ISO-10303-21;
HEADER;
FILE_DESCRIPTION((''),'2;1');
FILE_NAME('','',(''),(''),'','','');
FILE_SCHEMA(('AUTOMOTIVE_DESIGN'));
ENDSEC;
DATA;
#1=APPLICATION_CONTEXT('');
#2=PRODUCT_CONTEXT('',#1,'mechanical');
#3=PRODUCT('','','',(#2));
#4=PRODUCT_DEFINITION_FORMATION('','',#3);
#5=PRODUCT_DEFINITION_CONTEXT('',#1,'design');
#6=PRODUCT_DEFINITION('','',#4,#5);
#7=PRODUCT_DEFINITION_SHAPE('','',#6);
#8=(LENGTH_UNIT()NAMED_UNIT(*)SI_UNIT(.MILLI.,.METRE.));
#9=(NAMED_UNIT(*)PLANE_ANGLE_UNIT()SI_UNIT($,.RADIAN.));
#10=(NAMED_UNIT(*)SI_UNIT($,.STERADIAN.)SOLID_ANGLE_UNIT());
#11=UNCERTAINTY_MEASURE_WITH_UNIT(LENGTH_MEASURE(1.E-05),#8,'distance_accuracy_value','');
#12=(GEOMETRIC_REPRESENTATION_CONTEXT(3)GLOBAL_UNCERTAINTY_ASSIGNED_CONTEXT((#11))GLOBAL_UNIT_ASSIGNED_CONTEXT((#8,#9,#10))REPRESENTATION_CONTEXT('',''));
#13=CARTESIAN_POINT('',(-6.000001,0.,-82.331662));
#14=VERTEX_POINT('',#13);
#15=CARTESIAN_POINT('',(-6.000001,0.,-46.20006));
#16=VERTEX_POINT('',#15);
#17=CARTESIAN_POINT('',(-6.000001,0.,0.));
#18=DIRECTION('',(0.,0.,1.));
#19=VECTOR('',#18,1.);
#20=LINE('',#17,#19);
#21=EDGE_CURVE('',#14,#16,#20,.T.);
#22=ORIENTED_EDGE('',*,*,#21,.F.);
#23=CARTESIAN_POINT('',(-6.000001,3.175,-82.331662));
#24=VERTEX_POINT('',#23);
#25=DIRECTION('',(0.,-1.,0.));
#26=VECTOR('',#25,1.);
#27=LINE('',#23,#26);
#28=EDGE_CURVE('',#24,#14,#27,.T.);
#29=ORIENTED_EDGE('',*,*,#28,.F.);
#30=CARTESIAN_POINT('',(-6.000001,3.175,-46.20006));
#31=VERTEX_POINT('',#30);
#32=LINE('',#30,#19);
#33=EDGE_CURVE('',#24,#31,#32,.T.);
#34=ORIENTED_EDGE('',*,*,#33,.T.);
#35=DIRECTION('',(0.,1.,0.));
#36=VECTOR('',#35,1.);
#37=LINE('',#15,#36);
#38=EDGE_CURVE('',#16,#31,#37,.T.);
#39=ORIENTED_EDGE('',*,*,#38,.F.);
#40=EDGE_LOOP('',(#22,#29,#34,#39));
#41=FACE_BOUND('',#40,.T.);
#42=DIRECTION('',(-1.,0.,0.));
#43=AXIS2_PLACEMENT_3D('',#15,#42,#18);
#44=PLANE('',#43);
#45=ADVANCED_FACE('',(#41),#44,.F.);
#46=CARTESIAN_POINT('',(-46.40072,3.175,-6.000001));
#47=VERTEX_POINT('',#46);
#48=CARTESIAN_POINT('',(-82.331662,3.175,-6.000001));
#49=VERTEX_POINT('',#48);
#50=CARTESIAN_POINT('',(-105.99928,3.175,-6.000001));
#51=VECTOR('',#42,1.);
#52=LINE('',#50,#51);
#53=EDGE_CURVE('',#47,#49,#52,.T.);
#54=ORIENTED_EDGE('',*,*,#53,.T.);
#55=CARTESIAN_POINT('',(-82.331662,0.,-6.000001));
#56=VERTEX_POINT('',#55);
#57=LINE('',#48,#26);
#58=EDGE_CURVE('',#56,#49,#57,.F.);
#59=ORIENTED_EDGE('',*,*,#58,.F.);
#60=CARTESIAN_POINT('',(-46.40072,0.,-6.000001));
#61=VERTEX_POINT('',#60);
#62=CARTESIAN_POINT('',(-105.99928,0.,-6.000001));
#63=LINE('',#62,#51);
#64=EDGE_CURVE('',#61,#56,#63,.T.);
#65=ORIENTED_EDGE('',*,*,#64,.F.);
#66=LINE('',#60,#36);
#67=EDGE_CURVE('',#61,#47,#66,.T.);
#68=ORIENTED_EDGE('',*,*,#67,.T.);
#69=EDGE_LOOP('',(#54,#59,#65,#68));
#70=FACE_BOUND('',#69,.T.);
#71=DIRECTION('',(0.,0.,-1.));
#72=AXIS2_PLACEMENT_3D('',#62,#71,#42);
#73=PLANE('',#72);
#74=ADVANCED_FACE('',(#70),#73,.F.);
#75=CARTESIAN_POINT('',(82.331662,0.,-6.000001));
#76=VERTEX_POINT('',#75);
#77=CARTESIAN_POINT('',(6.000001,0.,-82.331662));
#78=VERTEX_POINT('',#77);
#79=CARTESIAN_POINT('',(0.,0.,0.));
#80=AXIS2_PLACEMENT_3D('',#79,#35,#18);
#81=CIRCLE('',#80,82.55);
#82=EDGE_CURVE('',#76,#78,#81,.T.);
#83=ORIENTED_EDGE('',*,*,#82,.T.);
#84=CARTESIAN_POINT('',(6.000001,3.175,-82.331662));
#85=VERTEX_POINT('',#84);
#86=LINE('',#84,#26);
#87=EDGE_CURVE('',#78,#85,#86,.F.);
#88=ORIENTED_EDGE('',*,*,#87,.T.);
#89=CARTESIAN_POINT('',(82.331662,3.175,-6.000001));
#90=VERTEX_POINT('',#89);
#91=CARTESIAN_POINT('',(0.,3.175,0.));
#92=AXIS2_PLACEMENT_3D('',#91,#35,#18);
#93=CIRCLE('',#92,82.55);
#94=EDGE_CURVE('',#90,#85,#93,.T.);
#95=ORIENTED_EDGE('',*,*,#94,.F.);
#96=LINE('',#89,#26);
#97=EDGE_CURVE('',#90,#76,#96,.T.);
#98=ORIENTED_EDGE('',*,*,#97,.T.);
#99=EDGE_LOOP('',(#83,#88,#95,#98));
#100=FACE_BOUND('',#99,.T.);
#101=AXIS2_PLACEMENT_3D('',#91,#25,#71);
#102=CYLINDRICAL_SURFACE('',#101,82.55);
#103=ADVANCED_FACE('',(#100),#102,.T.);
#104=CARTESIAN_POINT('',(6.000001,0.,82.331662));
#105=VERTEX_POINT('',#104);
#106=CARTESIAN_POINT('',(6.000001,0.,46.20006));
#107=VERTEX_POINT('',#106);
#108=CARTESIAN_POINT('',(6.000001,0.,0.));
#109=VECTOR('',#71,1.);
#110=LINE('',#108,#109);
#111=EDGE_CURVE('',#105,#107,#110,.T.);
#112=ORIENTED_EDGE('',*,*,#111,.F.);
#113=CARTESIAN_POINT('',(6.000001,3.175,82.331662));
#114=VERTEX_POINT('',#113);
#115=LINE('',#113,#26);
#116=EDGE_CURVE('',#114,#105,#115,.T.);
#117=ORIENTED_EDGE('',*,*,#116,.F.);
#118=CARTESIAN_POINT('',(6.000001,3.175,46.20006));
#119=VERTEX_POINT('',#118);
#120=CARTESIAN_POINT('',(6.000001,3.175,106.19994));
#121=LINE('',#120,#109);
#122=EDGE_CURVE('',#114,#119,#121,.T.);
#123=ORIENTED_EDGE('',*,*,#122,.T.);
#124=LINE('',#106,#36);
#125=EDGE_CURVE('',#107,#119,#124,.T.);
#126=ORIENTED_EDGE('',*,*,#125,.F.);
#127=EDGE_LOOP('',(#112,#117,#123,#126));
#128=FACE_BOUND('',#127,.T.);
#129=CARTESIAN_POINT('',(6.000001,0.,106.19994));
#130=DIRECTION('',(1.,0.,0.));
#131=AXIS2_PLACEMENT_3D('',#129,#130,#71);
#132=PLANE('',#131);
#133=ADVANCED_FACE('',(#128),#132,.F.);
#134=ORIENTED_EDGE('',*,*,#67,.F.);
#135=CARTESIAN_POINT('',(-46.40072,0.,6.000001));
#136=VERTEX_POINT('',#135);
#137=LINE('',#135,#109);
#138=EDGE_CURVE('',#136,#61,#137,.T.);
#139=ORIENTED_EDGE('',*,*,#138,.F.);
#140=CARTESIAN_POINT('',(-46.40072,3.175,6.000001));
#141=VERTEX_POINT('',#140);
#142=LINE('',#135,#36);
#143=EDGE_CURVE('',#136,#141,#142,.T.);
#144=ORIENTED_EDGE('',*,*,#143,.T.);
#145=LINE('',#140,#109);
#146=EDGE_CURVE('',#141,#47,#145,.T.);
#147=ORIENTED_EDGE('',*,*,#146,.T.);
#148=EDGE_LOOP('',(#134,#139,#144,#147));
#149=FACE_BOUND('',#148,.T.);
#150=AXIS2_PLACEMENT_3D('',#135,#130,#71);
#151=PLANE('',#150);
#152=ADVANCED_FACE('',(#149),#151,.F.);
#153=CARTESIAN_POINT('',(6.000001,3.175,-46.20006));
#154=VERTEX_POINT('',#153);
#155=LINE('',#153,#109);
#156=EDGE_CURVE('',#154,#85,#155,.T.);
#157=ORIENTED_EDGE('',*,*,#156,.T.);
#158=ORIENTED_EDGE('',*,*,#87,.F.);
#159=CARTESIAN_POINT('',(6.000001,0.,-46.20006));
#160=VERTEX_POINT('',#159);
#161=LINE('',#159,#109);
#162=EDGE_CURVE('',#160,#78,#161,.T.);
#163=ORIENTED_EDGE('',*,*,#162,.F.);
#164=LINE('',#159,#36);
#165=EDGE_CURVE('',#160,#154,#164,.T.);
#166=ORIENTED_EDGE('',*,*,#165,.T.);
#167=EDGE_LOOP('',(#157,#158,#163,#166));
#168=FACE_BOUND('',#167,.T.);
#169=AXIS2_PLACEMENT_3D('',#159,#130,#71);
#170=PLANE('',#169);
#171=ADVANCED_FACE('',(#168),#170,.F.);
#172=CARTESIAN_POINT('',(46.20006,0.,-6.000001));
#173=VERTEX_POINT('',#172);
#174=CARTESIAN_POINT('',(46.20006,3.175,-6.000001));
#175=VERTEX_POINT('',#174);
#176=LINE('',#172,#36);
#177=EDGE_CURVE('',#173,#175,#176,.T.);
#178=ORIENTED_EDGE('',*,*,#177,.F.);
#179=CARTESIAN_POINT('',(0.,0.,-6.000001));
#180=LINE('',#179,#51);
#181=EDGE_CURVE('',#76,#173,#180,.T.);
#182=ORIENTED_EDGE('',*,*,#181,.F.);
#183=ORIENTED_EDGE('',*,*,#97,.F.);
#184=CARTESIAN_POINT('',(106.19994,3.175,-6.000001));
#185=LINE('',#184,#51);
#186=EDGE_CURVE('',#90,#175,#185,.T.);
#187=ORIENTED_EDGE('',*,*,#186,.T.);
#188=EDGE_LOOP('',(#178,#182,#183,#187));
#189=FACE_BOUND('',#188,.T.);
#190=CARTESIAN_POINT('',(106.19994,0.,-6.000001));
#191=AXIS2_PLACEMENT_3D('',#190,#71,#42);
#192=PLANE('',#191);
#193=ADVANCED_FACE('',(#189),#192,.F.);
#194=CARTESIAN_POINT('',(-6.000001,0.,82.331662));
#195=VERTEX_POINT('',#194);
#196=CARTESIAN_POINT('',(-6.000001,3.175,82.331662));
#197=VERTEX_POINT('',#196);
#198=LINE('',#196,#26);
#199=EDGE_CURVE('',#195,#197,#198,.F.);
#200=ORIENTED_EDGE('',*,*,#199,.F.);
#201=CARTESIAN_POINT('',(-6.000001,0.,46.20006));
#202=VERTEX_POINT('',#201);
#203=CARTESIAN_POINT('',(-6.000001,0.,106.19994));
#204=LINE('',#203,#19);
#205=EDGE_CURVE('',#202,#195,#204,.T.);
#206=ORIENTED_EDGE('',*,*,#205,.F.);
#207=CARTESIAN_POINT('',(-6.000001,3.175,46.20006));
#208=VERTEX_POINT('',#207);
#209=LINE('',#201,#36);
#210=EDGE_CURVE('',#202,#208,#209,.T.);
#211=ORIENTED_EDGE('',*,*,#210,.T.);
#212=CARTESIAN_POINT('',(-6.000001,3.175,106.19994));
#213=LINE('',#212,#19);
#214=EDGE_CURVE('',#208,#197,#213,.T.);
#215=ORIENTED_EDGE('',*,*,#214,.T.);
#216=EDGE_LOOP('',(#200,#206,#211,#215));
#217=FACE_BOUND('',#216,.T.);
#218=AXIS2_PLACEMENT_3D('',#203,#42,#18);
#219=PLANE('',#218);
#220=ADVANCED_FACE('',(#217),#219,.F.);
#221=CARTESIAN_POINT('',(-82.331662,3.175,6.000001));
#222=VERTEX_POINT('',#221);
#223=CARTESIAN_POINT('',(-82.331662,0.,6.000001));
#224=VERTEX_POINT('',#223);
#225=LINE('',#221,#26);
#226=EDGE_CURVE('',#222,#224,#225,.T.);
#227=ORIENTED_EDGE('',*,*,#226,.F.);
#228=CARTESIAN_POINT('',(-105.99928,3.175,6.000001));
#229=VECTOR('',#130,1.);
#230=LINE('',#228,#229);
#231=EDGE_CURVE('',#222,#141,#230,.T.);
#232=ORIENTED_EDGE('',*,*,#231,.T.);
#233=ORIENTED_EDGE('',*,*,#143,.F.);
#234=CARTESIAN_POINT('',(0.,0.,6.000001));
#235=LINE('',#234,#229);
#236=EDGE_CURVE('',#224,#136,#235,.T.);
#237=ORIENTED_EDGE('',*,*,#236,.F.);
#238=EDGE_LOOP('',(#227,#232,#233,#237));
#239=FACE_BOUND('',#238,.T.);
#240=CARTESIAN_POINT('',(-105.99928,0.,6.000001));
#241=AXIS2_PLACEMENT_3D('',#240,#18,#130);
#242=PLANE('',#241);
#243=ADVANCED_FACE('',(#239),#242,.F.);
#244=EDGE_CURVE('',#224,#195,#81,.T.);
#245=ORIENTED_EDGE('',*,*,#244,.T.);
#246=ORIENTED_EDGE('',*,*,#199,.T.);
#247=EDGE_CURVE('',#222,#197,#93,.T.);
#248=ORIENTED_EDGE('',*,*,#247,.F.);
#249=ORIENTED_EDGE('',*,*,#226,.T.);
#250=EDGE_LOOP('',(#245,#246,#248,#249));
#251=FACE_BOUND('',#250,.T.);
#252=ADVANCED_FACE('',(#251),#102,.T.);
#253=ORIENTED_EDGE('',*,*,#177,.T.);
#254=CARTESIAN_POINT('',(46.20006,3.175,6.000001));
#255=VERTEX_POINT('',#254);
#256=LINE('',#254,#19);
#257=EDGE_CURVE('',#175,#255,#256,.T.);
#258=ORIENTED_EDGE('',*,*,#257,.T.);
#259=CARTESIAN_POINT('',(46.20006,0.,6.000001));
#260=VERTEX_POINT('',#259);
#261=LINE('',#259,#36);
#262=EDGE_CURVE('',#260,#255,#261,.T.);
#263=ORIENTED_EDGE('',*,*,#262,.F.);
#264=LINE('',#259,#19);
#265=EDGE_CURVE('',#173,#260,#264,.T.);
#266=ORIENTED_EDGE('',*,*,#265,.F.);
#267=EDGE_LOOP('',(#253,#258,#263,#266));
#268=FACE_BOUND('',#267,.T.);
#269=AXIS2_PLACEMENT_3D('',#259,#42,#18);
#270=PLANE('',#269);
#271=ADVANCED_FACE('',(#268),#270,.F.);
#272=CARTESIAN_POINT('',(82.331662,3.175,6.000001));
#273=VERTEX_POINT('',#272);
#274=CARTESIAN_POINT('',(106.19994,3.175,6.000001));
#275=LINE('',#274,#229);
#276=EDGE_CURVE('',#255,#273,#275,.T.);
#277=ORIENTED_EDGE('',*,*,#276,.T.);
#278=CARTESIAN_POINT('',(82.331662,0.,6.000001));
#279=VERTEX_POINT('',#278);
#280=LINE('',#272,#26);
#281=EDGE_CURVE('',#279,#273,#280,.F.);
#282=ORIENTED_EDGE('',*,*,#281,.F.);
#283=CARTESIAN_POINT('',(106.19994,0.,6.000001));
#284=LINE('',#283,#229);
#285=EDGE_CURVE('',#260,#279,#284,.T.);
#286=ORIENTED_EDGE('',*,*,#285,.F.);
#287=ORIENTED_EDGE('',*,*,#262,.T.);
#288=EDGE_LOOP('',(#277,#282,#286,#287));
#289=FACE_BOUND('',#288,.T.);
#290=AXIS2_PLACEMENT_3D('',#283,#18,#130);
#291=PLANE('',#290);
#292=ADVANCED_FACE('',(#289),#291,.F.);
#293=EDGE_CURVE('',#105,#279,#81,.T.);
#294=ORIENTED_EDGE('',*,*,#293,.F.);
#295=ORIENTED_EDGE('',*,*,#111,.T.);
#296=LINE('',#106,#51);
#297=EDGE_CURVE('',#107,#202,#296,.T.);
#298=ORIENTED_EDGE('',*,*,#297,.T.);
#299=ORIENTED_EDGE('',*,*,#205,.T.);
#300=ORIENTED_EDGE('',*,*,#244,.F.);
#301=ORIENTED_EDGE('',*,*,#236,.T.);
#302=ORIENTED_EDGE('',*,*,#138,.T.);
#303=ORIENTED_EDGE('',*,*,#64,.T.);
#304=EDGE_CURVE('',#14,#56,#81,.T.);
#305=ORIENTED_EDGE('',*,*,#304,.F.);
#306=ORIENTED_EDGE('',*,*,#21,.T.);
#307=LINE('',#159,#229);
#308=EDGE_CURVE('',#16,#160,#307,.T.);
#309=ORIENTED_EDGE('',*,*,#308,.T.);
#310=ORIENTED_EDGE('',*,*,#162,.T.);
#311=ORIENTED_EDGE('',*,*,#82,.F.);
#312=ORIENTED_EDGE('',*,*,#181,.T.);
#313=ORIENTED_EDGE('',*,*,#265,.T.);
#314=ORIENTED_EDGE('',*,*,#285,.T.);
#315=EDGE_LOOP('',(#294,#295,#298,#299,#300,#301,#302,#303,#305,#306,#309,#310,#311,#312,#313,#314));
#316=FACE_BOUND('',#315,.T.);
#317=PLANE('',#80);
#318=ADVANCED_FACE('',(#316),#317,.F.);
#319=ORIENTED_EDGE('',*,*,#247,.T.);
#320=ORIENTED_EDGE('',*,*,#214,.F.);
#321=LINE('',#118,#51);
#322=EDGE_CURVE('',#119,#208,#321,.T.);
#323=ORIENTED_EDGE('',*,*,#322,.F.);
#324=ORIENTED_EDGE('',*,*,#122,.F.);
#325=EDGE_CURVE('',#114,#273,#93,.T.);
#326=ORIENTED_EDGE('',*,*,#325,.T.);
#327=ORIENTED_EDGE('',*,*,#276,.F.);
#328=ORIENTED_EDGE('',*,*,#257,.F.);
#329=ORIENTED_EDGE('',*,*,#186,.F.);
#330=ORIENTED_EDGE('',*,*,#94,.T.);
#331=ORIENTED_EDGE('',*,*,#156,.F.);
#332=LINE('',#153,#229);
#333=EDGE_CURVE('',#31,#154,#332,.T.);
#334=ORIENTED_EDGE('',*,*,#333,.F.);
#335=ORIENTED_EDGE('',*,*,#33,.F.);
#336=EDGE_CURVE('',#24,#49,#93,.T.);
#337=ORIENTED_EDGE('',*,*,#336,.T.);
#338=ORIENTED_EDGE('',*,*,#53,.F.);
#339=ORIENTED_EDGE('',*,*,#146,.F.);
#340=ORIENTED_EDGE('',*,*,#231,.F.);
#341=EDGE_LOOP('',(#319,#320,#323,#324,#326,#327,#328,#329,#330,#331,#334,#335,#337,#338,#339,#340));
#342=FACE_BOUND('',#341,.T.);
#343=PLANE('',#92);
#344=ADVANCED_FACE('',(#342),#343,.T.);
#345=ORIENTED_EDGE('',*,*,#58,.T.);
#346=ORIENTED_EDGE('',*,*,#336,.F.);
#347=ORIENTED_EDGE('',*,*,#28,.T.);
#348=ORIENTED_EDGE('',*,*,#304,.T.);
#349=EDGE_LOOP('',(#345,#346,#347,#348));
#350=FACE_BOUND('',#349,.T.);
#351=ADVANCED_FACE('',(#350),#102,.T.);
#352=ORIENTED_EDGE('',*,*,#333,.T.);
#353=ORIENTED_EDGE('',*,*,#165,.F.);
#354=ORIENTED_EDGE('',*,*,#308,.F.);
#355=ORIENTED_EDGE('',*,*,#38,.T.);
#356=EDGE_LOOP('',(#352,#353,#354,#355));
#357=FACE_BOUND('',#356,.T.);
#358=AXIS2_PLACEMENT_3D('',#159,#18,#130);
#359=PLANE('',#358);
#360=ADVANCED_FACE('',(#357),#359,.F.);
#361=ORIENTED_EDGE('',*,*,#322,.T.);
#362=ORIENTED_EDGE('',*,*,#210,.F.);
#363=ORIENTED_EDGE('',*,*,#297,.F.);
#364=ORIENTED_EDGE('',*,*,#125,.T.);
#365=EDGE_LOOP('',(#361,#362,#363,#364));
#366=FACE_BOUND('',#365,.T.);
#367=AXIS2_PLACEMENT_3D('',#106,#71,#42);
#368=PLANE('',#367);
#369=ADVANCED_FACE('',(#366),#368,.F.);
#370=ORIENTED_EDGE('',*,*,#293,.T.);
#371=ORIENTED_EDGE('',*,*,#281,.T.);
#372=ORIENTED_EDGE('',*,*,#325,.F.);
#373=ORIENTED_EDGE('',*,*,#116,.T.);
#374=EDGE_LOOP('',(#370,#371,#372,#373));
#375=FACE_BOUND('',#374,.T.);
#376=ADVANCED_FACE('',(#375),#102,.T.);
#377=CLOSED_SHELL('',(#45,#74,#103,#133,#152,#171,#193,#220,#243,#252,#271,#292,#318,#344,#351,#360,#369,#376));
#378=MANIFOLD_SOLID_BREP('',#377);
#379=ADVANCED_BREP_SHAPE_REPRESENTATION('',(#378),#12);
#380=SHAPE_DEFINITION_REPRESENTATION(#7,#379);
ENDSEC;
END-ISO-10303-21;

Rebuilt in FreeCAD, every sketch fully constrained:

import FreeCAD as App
import Part
import Sketcher
from FreeCAD import Vector
Q = App.Units.Quantity

doc = App.newDocument("Part")
body = doc.addObject("PartDesign::Body", "Body")

sketch1 = doc.addObject("Sketcher::SketchObject", "Sketch")
body.addObject(sketch1)
sketch1.AttachmentSupport = (doc.XZ_Plane, [""])
sketch1.MapMode = "FlatFace"
sketch1.addGeometry(Part.Circle(Vector(0, 0, 0), Vector(0, 0, 1), 83), False)
sketch1.addConstraint([
    Sketcher.Constraint("Coincident", 0, 3, -1, 1),
    Sketcher.Constraint("Diameter", 0, Q("6.5 in")),
])
pad1 = doc.addObject("PartDesign::Pad", "Pad")
body.addObject(pad1)
pad1.Profile = sketch1
pad1.Length = Q("0.125 in")
pad1.Reversed = True

sketch2 = doc.addObject("Sketcher::SketchObject", "Sketch001")
body.addObject(sketch2)
sketch2.AttachmentSupport = (doc.XZ_Plane, [""])
sketch2.MapMode = "FlatFace"
sketch2.AttachmentOffset = App.Placement(Vector(0, 0, -0.125 * 25.4), App.Rotation())
sketch2.addGeometry([
    Part.LineSegment(Vector(-106, -6, 0), Vector(-106, 6, 0)),
    Part.LineSegment(Vector(-106, 6, 0), Vector(-46, 6, 0)),
    Part.LineSegment(Vector(-46, 6, 0), Vector(-46, -6, 0)),
    Part.LineSegment(Vector(-46, -6, 0), Vector(-106, -6, 0)),
    Part.LineSegment(Vector(46, -6, 0), Vector(46, 6, 0)),
    Part.LineSegment(Vector(46, 6, 0), Vector(106, 6, 0)),
    Part.LineSegment(Vector(106, 6, 0), Vector(106, -6, 0)),
    Part.LineSegment(Vector(106, -6, 0), Vector(46, -6, 0)),
    Part.LineSegment(Vector(-6, -106, 0), Vector(-6, -46, 0)),
    Part.LineSegment(Vector(-6, -46, 0), Vector(6, -46, 0)),
    Part.LineSegment(Vector(6, -46, 0), Vector(6, -106, 0)),
    Part.LineSegment(Vector(6, -106, 0), Vector(-6, -106, 0)),
    Part.LineSegment(Vector(-6, 46, 0), Vector(-6, 106, 0)),
    Part.LineSegment(Vector(-6, 106, 0), Vector(6, 106, 0)),
    Part.LineSegment(Vector(6, 106, 0), Vector(6, 46, 0)),
    Part.LineSegment(Vector(6, 46, 0), Vector(-6, 46, 0)),
], False)
sketch2.addConstraint([
    Sketcher.Constraint("Coincident", 0, 2, 1, 1),
    Sketcher.Constraint("Coincident", 1, 2, 2, 1),
    Sketcher.Constraint("Coincident", 2, 2, 3, 1),
    Sketcher.Constraint("Coincident", 3, 2, 0, 1),
    Sketcher.Constraint("Coincident", 4, 2, 5, 1),
    Sketcher.Constraint("Coincident", 5, 2, 6, 1),
    Sketcher.Constraint("Coincident", 6, 2, 7, 1),
    Sketcher.Constraint("Coincident", 7, 2, 4, 1),
    Sketcher.Constraint("Coincident", 8, 2, 9, 1),
    Sketcher.Constraint("Coincident", 9, 2, 10, 1),
    Sketcher.Constraint("Coincident", 10, 2, 11, 1),
    Sketcher.Constraint("Coincident", 11, 2, 8, 1),
    Sketcher.Constraint("Coincident", 12, 2, 13, 1),
    Sketcher.Constraint("Coincident", 13, 2, 14, 1),
    Sketcher.Constraint("Coincident", 14, 2, 15, 1),
    Sketcher.Constraint("Coincident", 15, 2, 12, 1),
    Sketcher.Constraint("Vertical", 0),
    Sketcher.Constraint("Horizontal", 1),
    Sketcher.Constraint("Vertical", 2),
    Sketcher.Constraint("Horizontal", 3),
    Sketcher.Constraint("Vertical", 4),
    Sketcher.Constraint("Horizontal", 5),
    Sketcher.Constraint("Vertical", 6),
    Sketcher.Constraint("Horizontal", 7),
    Sketcher.Constraint("Vertical", 8),
    Sketcher.Constraint("Horizontal", 9),
    Sketcher.Constraint("Vertical", 10),
    Sketcher.Constraint("Horizontal", 11),
    Sketcher.Constraint("Vertical", 12),
    Sketcher.Constraint("Horizontal", 13),
    Sketcher.Constraint("Vertical", 14),
    Sketcher.Constraint("Horizontal", 15),
    Sketcher.Constraint("Symmetric", 10, 2, 12, 2, -1, 1),
    Sketcher.Constraint("Symmetric", 8, 2, 14, 2, -1, 1),
    Sketcher.Constraint("Horizontal", 1, 2, 4, 2),
    Sketcher.Constraint("Horizontal", 3, 2, 6, 2),
    Sketcher.Constraint("Vertical", 11, 2, 12, 2),
    Sketcher.Constraint("Equal", 15, 0),
    Sketcher.Constraint("Equal", 7, 8),
    Sketcher.Constraint("DistanceX", 1, 1, 1, 2, Q("2.3464 in")),
    Sketcher.Constraint("DistanceX", 5, 1, 5, 2, Q("2.3622 in")),
    Sketcher.Constraint("DistanceX", 9, 1, 9, 2, 12.000001),
    Sketcher.Constraint("DistanceX", 0, 2, -1, 1, Q("4.1732 in")),
    Sketcher.Constraint("DistanceX", -1, 1, 4, 2, Q("1.8189 in")),
    Sketcher.Constraint("DistanceY", 8, 2, -1, 1, Q("1.8189 in")),
    Sketcher.Constraint("DistanceY", -1, 1, 0, 2, 6.000001),
])
pocket1 = doc.addObject("PartDesign::Pocket", "Pocket")
body.addObject(pocket1)
pocket1.Profile = sketch2
pocket1.Length = Q("0.125 in")
pocket1.Reversed = True

doc.recompute()
